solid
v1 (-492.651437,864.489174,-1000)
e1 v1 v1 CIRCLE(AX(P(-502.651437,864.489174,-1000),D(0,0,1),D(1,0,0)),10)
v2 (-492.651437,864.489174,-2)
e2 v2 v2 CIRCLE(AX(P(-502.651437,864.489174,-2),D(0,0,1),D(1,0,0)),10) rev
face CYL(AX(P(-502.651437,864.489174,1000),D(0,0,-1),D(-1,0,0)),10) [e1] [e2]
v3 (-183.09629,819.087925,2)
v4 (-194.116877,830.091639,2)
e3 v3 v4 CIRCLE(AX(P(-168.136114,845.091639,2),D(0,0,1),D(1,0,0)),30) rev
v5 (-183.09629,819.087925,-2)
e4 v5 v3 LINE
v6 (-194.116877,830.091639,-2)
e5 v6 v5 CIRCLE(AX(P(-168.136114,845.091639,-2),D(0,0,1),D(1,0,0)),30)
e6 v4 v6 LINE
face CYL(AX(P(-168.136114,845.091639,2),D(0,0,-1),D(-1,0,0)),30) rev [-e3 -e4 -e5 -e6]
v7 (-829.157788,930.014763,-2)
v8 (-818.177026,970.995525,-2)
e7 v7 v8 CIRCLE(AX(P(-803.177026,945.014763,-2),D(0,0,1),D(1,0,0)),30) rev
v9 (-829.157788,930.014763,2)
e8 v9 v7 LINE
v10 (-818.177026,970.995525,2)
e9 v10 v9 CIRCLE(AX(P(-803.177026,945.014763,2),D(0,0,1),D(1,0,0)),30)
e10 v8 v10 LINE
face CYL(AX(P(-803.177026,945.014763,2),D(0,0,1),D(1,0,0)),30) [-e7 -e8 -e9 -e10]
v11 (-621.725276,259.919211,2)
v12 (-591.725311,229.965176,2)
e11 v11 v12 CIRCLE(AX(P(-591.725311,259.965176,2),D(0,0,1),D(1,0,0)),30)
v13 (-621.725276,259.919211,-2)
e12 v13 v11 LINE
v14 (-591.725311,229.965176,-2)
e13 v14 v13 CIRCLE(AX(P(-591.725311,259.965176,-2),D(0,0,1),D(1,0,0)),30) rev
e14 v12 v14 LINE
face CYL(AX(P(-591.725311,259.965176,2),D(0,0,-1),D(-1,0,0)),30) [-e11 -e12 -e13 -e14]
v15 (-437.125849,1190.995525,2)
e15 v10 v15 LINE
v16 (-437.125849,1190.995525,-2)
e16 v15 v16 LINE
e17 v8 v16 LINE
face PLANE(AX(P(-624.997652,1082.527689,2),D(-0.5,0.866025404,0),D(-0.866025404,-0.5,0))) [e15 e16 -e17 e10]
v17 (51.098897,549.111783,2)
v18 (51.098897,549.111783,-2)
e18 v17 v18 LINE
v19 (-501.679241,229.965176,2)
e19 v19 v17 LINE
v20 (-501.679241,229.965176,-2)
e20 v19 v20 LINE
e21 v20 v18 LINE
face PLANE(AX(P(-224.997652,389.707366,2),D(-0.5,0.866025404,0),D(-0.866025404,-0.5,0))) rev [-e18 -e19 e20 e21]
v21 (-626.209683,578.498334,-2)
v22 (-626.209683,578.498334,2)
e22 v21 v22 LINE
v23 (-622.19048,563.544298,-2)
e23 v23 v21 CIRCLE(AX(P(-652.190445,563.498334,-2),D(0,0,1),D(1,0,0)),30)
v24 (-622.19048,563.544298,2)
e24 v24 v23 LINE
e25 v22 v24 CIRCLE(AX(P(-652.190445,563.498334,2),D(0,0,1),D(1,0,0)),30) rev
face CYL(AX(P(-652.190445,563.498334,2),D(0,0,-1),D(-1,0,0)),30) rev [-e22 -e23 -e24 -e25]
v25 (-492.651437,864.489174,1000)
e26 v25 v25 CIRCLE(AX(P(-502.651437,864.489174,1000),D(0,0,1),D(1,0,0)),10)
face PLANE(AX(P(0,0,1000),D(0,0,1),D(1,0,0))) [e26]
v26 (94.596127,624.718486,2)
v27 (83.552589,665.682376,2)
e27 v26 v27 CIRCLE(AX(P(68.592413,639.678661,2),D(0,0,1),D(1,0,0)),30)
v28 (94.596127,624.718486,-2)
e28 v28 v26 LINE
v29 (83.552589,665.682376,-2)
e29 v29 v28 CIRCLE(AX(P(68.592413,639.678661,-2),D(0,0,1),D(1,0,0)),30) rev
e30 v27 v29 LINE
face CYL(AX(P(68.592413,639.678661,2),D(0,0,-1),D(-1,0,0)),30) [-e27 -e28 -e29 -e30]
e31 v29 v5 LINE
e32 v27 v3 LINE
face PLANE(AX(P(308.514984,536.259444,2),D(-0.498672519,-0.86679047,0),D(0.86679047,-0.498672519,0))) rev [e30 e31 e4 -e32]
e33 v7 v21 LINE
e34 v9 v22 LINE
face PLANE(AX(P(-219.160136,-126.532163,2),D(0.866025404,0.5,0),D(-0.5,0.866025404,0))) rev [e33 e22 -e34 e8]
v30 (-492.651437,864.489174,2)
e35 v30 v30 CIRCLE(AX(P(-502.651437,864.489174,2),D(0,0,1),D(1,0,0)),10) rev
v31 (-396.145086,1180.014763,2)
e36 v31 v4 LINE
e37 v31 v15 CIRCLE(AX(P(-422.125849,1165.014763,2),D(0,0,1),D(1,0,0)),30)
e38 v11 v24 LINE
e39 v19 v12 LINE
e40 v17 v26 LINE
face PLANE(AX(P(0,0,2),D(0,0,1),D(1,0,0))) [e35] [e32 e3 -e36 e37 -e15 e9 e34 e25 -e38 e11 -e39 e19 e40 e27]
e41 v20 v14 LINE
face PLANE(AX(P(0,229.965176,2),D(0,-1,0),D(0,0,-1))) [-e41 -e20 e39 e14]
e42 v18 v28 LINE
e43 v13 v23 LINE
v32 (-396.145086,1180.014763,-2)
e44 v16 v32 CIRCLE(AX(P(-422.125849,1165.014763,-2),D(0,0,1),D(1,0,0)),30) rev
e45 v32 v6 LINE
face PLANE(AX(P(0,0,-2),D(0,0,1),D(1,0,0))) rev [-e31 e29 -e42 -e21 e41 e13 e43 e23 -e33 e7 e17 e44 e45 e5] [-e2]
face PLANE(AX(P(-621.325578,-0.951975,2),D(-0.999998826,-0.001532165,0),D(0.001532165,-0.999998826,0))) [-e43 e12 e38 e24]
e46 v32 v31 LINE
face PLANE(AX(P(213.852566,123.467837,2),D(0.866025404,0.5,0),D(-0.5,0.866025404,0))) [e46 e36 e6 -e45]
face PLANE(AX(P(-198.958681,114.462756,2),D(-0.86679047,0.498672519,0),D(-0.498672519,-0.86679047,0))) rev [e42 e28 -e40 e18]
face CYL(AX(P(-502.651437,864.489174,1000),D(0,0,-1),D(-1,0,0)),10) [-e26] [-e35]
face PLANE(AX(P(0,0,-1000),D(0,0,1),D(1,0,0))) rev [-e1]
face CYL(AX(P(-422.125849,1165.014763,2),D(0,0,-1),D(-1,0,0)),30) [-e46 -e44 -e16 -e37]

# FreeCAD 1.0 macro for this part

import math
import FreeCAD as App
import Part
import Sketcher
Q = App.Units.Quantity


def edges_at(feature, points):
    """Names of the edges that pass closest to the given points."""
    edges = feature.Shape.Edges
    near = lambda p: min(range(len(edges)), key=lambda i: edges[i].distToShape(Part.Vertex(*p))[0])
    return sorted({f"Edge{near(p) + 1}" for p in points})


def add_polygon(sketch, points):
    """Adds a closed chain of lines whose ends are joined by coincident constraints."""
    first, n = sketch.GeometryCount, len(points)
    for a, b in zip(points, points[1:] + points[:1]):
        sketch.addGeometry(Part.LineSegment(App.Vector(*a, 0), App.Vector(*b, 0)), False)
    for i in range(n):
        sketch.addConstraint(Sketcher.Constraint("Coincident", first + i, 2, first + (i + 1) % n, 1))

doc = App.newDocument("Part")
body = doc.addObject("PartDesign::Body", "Body")

# Sketch on XY plane
sketch1 = doc.addObject("Sketcher::SketchObject", "Sketch")
body.addObject(sketch1)
sketch1.AttachmentSupport = (doc.XY_Plane, [""])
sketch1.MapMode = "FlatFace"
add_polygon(sketch1, [(51, 549), (110, 651), (-190, 823), (-411, 1206), (-844, 956), (-622, 572), (-622, 230), (-502, 230)])  # lines 0-7
sketch1.addConstraint(Sketcher.Constraint("Horizontal", 6))
sketch1.addConstraint(Sketcher.Constraint("Perpendicular", 0, 1))
sketch1.addConstraint(Sketcher.Constraint("Perpendicular", 2, 3))
sketch1.addConstraint(Sketcher.Constraint("Perpendicular", 3, 4))
sketch1.addConstraint(Sketcher.Constraint("Perpendicular", 4, 7))
sketch1.addConstraint(Sketcher.Constraint("Angle", 2, Q("120 deg")))
sketch1.addConstraint(Sketcher.Constraint("Distance", 3, Q("500 mm")))
sketch1.addConstraint(Sketcher.Constraint("DistanceX", 6, 1, 6, 2, Q("120.000141 mm")))
sketch1.addConstraint(Sketcher.Constraint("DistanceY", -1, 1, 0, 2, Q("650.7222 mm")))
sketch1.addConstraint(Sketcher.Constraint("DistanceY", 5, 2, 1, 2, Q("593.143602 mm")))
sketch1.addConstraint(Sketcher.Constraint("Distance", 4, Q("443.910059 mm")))
sketch1.addConstraint(Sketcher.Constraint("DistanceX", 1, 2, -1, 1, Q("190.08532 mm")))
sketch1.addConstraint(Sketcher.Constraint("DistanceX", 3, 2, -1, 1, Q("844.157788 mm")))
sketch1.addConstraint(Sketcher.Constraint("DistanceX", 5, 2, -1, 1, Q("621.679382 mm")))
sketch1.addConstraint(Sketcher.Constraint("DistanceX", 2, 2, 0, 2, Q("520.70139 mm")))
sketch1.addConstraint(Sketcher.Constraint("DistanceX", 5, 2, 7, 2, Q("672.778278 mm")))
pad1 = doc.addObject("PartDesign::Pad", "Pad")
body.addObject(pad1)
pad1.Profile = sketch1
pad1.Length = 4
pad1.Midplane = True

# Sketch on XY plane
sketch2 = doc.addObject("Sketcher::SketchObject", "Sketch001")
body.addObject(sketch2)
sketch2.AttachmentSupport = (doc.XY_Plane, [""])
sketch2.MapMode = "FlatFace"
sketch2.addGeometry(Part.ArcOfCircle(Part.Circle(App.Vector(-503, 864, 0), App.Vector(0, 0, 1), 10), math.radians(60), math.radians(330)), False)
sketch2.addGeometry(Part.ArcOfCircle(Part.Circle(App.Vector(-503, 864, 0), App.Vector(0, 0, 1), 10), math.radians(-30), math.radians(0)), False)
sketch2.addGeometry(Part.ArcOfCircle(Part.Circle(App.Vector(-503, 864, 0), App.Vector(0, 0, 1), 10), math.radians(0), math.radians(60)), False)
sketch2.addConstraint(Sketcher.Constraint("Tangent", 0, 2, 1, 1))
sketch2.addConstraint(Sketcher.Constraint("Tangent", 1, 2, 2, 1))
sketch2.addConstraint(Sketcher.Constraint("Tangent", 2, 2, 0, 1))
sketch2.addConstraint(Sketcher.Constraint("Horizontal", 2, 3, 1, 2))
sketch2.addConstraint(Sketcher.Constraint("Radius", 0, Q("10 mm")))
sketch2.addConstraint(Sketcher.Constraint("DistanceY", -1, 1, 0, 2, Q("859.502449 mm")))
sketch2.addConstraint(Sketcher.Constraint("DistanceY", -1, 1, 2, 2, Q("873.157079 mm")))
sketch2.addConstraint(Sketcher.Constraint("DistanceX", 2, 2, 0, 2, Q("3.68118 mm")))
sketch2.addConstraint(Sketcher.Constraint("DistanceX", 0, 3, -1, 1, Q("502.651437 mm")))
pad2 = doc.addObject("PartDesign::Pad", "Pad001")
body.addObject(pad2)
pad2.Profile = sketch2
pad2.Length = 2000
pad2.Midplane = True
doc.recompute()

fillet = doc.addObject("PartDesign::Fillet", "Fillet")
body.addObject(fillet)
fillet.Base = (pad2, edges_at(pad2, [
    (-621.679, 229.965, 0),
    (-622.203, 571.558, 0),
    (-844.158, 955.996, 0),
    (-411.145, 1205.996, 0),
    (-190.085, 823.109, 0),
    (109.556, 650.722, 0),
]))
fillet.Radius = 30

doc.recompute()
